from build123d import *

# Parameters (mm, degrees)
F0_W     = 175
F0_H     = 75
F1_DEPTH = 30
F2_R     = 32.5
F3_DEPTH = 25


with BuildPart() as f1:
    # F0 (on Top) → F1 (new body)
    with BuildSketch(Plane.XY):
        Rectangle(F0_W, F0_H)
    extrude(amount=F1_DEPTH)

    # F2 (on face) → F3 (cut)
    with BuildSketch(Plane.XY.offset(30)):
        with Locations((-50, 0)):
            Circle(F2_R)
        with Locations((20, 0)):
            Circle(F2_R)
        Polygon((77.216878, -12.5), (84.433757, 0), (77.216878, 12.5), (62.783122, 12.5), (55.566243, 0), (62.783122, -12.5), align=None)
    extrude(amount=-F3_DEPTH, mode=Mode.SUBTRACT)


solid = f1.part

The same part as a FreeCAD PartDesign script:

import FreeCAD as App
import Part
import Sketcher

V = App.Vector
Q = App.Units.Quantity


def add_polygon(sketch, points):
    """Adds a closed chain of lines whose ends are joined by coincident constraints."""
    first, n = sketch.GeometryCount, len(points)
    for a, b in zip(points, points[1:] + points[:1]):
        sketch.addGeometry(Part.LineSegment(App.Vector(*a, 0), App.Vector(*b, 0)), False)
    for i in range(n):
        sketch.addConstraint(Sketcher.Constraint("Coincident", first + i, 2, first + (i + 1) % n, 1))

doc = App.newDocument("Part")
body = doc.addObject("PartDesign::Body", "Body")

# Sketch on XY plane
sketch1 = body.newObject("Sketcher::SketchObject", "Sketch")
sketch1.AttachmentSupport = (doc.getObject("XY_Plane"), [""])
sketch1.MapMode = "FlatFace"
add_polygon(sketch1, [(-88, 38), (-88, -38), (88, -38), (88, 38)])  # lines 0-3
sketch1.addConstraint([
    Sketcher.Constraint("Vertical", 0),
    Sketcher.Constraint("Horizontal", 1),
    Sketcher.Constraint("Vertical", 2),
    Sketcher.Constraint("Horizontal", 3),
    Sketcher.Constraint("Symmetric", 0, 2, 2, 2, -1, 1),
    Sketcher.Constraint("DistanceX", 1, 1, 1, 2, 175.0),
    Sketcher.Constraint("DistanceY", 0, 2, 0, 1, 75.0),
])
pad1 = body.newObject("PartDesign::Pad", "Pad")
pad1.Profile = sketch1
pad1.Length = 30

# Sketch on XY plane
sketch2 = body.newObject("Sketcher::SketchObject", "Sketch001")
sketch2.AttachmentSupport = (doc.getObject("XY_Plane"), [""])
sketch2.MapMode = "FlatFace"
sketch2.AttachmentOffset = App.Placement(V(0, 0, 30), App.Rotation())
sketch2.addGeometry(Part.Circle(V(-50, 0, 0), V(0, 0, 1), 32), False)  # 0
sketch2.addGeometry(Part.Circle(V(20, 0, 0), V(0, 0, 1), 32), False)  # 1
add_polygon(sketch2, [(77, -12), (84, 0), (77, 12), (63, 12), (56, 0), (63, -12)])  # lines 2-7
sketch2.addConstraint([
    Sketcher.Constraint("Horizontal", 4),
    Sketcher.Constraint("Horizontal", 7),
    Sketcher.Constraint("Equal", 0, 1),
    Sketcher.Constraint("Symmetric", 4, 2, 6, 2, -1),
    Sketcher.Constraint("PointOnObject", 0, 3, -1),
    Sketcher.Constraint("PointOnObject", 1, 3, -1),
    Sketcher.Constraint("PointOnObject", 2, 2, -1),
    Sketcher.Constraint("PointOnObject", 5, 2, -1),
    Sketcher.Constraint("Parallel", 2, 5),
    Sketcher.Constraint("Parallel", 3, 6),
    Sketcher.Constraint("Diameter", 0, 65.0),
    Sketcher.Constraint("Angle", 2, Q("59.999998 deg")),
    Sketcher.Constraint("DistanceX", 0, 3, -1, 1, 50.0),
    Sketcher.Constraint("DistanceX", -1, 1, 1, 3, 20.0),
    Sketcher.Constraint("DistanceY", 6, 2, 4, 2, 25.0),
    Sketcher.Constraint("DistanceX", 4, 2, 4, 1, 14.433756),
    Sketcher.Constraint("DistanceX", 0, 3, 4, 2, 112.783122),
])
pocket1 = body.newObject("PartDesign::Pocket", "Pocket")
pocket1.Profile = sketch2
pocket1.Length = 25

doc.recompute()
